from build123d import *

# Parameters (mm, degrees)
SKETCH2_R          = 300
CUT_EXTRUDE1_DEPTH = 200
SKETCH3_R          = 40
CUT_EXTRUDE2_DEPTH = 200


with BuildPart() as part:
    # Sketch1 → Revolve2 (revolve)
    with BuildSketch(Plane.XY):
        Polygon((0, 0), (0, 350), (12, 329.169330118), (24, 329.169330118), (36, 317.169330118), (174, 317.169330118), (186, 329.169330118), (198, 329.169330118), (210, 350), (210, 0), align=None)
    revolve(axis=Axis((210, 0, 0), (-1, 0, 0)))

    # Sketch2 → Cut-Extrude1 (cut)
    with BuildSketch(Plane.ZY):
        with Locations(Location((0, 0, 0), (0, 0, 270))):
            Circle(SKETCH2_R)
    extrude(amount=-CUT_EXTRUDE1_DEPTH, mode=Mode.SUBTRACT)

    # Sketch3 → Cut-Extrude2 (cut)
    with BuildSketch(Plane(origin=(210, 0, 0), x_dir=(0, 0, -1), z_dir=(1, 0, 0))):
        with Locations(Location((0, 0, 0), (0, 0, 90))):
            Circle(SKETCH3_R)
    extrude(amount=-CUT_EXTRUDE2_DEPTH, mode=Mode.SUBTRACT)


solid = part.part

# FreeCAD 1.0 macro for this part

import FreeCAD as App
import Part
import Sketcher

V = App.Vector
Q = App.Units.Quantity


def add_polygon(sketch, points):
    """Adds a closed chain of lines whose ends are joined by coincident constraints."""
    first, n = sketch.GeometryCount, len(points)
    for a, b in zip(points, points[1:] + points[:1]):
        sketch.addGeometry(Part.LineSegment(App.Vector(*a, 0), App.Vector(*b, 0)), False)
    for i in range(n):
        sketch.addConstraint(Sketcher.Constraint("Coincident", first + i, 2, first + (i + 1) % n, 1))

doc = App.newDocument("Part")
body = doc.addObject("PartDesign::Body", "Body")

sketch1 = body.newObject("Sketcher::SketchObject", "Sketch")
sketch1.AttachmentSupport = (doc.getObject("XY_Plane"), [""])
sketch1.MapMode = "FlatFace"
add_polygon(sketch1, [(0, 350), (0, 0), (210, 0), (210, 350), (198, 329.16933), (186, 329.16933), (174, 317.16933), (36, 317.16933), (24, 329.16933), (12, 329.16933)])
sketch1.addConstraint(Sketcher.Constraint("Vertical", 0))
sketch1.addConstraint(Sketcher.Constraint("Horizontal", 1))
sketch1.addConstraint(Sketcher.Constraint("Vertical", 2))
sketch1.addConstraint(Sketcher.Constraint("Horizontal", 4))
sketch1.addConstraint(Sketcher.Constraint("Horizontal", 6))
sketch1.addConstraint(Sketcher.Constraint("Horizontal", 8))
sketch1.addConstraint(Sketcher.Constraint("Coincident", 0, 2, -1, 1))
sketch1.addConstraint(Sketcher.Constraint("Perpendicular", 5, 7))
sketch1.addConstraint(Sketcher.Constraint("Horizontal", 4, 2, 7, 2))
sketch1.addConstraint(Sketcher.Constraint("Horizontal", 2, 2, 9, 2))
sketch1.addConstraint(Sketcher.Constraint("Equal", 4, 8))
sketch1.addConstraint(Sketcher.Constraint("Equal", 5, 7))
sketch1.addConstraint(Sketcher.Constraint("Equal", 3, 9))
sketch1.addConstraint(Sketcher.Constraint("DistanceX", 1, 1, 1, 2, Q("210 mm")))
sketch1.addConstraint(Sketcher.Constraint("DistanceX", 4, 2, 4, 1, Q("12 mm")))
sketch1.addConstraint(Sketcher.Constraint("DistanceX", 6, 2, 6, 1, Q("138 mm")))
sketch1.addConstraint(Sketcher.Constraint("DistanceY", 0, 2, 0, 1, Q("350 mm")))
sketch1.addConstraint(Sketcher.Constraint("DistanceX", -1, 1, 3, 2, Q("198 mm")))
sketch1.addConstraint(Sketcher.Constraint("Distance", 3, Q("24.0399 mm")))
revolution = body.newObject("PartDesign::Revolution", "Revolution")
revolution.Profile = sketch1
revolution.ReferenceAxis = (sketch1, ["H_Axis"])
revolution.Angle = 360

sketch2 = body.newObject("Sketcher::SketchObject", "Sketch001")
sketch2.AttachmentSupport = (doc.getObject("YZ_Plane"), [""])
sketch2.MapMode = "FlatFace"
sketch2.addGeometry(Part.Circle(V(0, 0, 0), V(0, 0, 1), 300), False)
sketch2.addConstraint(Sketcher.Constraint("Coincident", 0, 3, -1, 1))
sketch2.addConstraint(Sketcher.Constraint("Diameter", 0, Q("600 mm")))
pocket1 = body.newObject("PartDesign::Pocket", "Pocket")
pocket1.Profile = sketch2
pocket1.Length = 200
pocket1.Reversed = True

sketch3 = body.newObject("Sketcher::SketchObject", "Sketch002")
sketch3.AttachmentSupport = (doc.getObject("YZ_Plane"), [""])
sketch3.MapMode = "FlatFace"
sketch3.AttachmentOffset = App.Placement(V(0, 0, 210), App.Rotation())
sketch3.addGeometry(Part.Circle(V(0, 0, 0), V(0, 0, 1), 40), False)
sketch3.addConstraint(Sketcher.Constraint("Coincident", 0, 3, -1, 1))
sketch3.addConstraint(Sketcher.Constraint("Diameter", 0, Q("80 mm")))
pocket2 = body.newObject("PartDesign::Pocket", "Pocket001")
pocket2.Profile = sketch3
pocket2.Length = 200

doc.recompute()
